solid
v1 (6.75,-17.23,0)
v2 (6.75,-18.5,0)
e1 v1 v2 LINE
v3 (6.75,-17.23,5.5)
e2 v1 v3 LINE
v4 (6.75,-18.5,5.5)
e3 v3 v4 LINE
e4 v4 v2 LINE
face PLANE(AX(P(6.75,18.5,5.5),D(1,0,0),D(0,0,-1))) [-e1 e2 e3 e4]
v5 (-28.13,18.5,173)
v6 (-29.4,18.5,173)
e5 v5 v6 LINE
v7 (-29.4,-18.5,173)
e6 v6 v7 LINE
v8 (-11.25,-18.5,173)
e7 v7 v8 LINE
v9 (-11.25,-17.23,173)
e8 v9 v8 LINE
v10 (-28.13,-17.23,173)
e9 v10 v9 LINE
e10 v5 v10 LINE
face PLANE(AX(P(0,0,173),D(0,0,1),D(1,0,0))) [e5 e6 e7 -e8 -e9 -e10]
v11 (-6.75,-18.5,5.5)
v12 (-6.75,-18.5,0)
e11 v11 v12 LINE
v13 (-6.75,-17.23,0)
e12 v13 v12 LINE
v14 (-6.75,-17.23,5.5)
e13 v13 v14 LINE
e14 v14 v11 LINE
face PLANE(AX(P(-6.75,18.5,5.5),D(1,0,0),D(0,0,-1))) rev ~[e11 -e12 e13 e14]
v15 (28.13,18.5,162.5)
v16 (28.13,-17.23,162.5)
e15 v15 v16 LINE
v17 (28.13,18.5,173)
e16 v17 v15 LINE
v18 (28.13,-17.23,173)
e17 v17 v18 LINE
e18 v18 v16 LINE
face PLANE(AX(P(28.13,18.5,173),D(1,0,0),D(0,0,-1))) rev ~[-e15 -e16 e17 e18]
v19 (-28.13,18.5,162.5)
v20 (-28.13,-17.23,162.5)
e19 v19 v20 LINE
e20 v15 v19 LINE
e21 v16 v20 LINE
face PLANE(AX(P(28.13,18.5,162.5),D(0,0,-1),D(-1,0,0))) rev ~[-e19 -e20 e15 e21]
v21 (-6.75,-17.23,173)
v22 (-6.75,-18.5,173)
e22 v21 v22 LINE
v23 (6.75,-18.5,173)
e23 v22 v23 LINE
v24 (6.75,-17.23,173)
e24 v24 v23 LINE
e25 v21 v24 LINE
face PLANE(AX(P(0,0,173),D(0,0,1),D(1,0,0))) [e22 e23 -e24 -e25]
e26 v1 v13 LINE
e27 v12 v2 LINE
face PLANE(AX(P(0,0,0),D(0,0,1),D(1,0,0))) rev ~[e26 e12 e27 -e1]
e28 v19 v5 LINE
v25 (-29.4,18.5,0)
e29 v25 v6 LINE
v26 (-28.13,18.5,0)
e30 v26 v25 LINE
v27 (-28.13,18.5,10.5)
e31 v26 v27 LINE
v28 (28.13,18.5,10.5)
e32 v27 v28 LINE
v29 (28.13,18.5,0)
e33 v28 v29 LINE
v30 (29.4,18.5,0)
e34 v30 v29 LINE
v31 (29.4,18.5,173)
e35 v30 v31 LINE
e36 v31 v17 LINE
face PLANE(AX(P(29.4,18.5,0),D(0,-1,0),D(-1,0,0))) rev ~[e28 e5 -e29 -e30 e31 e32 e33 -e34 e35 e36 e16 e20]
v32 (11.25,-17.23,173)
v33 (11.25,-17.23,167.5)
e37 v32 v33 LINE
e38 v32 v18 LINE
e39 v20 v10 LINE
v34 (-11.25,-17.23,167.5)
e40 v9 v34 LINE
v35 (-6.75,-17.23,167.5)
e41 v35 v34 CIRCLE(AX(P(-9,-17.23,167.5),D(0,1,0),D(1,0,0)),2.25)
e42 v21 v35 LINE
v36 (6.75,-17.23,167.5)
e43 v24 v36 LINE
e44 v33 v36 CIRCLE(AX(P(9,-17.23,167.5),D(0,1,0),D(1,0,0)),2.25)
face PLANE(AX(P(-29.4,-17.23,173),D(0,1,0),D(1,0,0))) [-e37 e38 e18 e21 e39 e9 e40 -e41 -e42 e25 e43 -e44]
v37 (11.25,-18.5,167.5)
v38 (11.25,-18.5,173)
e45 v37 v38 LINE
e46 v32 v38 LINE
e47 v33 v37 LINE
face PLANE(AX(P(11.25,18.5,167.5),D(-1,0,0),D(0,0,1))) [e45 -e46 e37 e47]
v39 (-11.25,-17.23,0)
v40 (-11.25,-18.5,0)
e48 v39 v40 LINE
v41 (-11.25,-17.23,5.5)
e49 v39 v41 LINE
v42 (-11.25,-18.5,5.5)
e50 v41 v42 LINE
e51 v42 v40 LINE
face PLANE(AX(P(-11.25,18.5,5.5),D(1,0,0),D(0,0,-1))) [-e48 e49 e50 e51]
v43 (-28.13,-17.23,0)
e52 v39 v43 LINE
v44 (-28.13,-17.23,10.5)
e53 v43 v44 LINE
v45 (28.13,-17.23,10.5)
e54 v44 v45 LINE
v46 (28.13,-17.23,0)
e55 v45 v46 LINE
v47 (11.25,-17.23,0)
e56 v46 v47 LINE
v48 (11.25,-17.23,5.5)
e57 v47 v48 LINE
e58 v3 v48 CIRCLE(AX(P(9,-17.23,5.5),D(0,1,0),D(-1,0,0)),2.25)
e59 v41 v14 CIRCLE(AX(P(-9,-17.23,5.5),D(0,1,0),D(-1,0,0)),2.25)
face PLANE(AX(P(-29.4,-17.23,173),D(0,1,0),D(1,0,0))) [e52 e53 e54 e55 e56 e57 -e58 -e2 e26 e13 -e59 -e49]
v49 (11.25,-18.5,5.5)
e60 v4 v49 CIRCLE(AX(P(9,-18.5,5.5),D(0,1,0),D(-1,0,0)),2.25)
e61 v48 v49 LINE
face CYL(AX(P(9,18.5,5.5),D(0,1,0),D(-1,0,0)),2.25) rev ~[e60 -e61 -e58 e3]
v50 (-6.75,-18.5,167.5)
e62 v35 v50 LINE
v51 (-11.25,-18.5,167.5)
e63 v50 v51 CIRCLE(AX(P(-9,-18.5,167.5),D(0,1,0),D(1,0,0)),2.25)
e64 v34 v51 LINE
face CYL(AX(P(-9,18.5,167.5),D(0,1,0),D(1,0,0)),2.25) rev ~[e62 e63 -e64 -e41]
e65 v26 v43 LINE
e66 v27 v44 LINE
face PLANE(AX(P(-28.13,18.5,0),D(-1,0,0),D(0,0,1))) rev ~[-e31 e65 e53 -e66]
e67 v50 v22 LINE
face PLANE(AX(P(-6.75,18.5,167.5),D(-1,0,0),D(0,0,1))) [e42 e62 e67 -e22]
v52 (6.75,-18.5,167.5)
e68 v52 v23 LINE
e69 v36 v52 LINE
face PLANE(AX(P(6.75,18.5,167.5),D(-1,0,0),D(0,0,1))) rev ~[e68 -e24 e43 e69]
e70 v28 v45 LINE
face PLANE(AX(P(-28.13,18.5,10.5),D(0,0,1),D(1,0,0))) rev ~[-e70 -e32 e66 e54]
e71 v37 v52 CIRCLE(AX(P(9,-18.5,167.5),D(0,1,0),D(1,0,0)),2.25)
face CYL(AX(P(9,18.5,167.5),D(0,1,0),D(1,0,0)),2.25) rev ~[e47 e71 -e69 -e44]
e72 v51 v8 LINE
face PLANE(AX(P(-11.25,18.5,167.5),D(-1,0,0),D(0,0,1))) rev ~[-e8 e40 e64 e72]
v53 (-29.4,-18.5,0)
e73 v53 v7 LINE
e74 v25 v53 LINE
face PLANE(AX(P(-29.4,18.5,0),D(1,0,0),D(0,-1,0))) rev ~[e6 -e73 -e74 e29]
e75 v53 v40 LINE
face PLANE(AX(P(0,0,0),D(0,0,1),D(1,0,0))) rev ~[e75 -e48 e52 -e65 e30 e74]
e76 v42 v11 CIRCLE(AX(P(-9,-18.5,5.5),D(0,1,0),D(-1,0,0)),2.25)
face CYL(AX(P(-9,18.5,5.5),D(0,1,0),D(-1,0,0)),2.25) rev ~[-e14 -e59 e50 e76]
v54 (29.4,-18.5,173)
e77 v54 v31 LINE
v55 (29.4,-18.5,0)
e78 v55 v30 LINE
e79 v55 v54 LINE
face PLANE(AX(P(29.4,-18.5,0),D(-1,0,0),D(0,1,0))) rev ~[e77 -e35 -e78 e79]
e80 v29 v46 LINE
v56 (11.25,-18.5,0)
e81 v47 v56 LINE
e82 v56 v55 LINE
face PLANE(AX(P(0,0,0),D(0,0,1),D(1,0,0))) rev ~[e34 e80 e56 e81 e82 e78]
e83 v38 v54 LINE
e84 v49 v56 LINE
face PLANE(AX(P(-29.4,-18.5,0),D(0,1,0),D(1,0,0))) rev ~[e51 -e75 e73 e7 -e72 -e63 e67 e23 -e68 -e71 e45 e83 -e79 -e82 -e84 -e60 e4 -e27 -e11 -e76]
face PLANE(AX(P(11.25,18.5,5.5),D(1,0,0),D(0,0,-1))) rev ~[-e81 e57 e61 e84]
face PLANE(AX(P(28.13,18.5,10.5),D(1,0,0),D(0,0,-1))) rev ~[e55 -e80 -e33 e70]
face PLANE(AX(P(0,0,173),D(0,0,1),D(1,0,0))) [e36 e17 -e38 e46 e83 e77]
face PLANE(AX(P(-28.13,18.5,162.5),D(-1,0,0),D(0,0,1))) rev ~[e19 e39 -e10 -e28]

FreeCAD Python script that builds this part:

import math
import FreeCAD as App
import Part
import Sketcher
from FreeCAD import Vector
Q = App.Units.Quantity

doc = App.newDocument("Part")
params = doc.addObject("Spreadsheet::Sheet", "Params")
for row, (alias, value) in enumerate([
    ("sketch1_height", "37 mm"),
    ("sketch1_width", "58.8 mm"),
    ("pad1_length", "173 mm"),
    ("sketch2_radius", "2.25 mm"),
    ("sketch2_height", "5.5 mm"),
    ("pocket1_length", "37 mm"),
    ("sketch3_height", "10.5 mm"),
    ("sketch3_width", "56.26 mm"),
    ("pocket2_length", "35.73 mm"),
], start=1):
    params.set(f"A{row}", alias)
    params.set(f"B{row}", "=" + value)
    params.setAlias(f"B{row}", alias)

body = doc.addObject("PartDesign::Body", "Body")

# Sketch on XY plane
sketch1 = doc.addObject("Sketcher::SketchObject", "Sketch")
body.addObject(sketch1)
sketch1.AttachmentSupport = (doc.XY_Plane, [""])
sketch1.MapMode = "FlatFace"
sketch1.addGeometry([
    Part.LineSegment(Vector(-29, 18, 0), Vector(-29, -18, 0)),
    Part.LineSegment(Vector(-29, -18, 0), Vector(29, -18, 0)),
    Part.LineSegment(Vector(29, -18, 0), Vector(29, 18, 0)),
    Part.LineSegment(Vector(29, 18, 0), Vector(-29, 18, 0)),
], False)
sketch1.addConstraint([
    Sketcher.Constraint("Coincident", 0, 2, 1, 1),
    Sketcher.Constraint("Coincident", 1, 2, 2, 1),
    Sketcher.Constraint("Coincident", 2, 2, 3, 1),
    Sketcher.Constraint("Coincident", 3, 2, 0, 1),
    Sketcher.Constraint("Vertical", 0),
    Sketcher.Constraint("Horizontal", 1),
    Sketcher.Constraint("Vertical", 2),
    Sketcher.Constraint("Horizontal", 3),
    Sketcher.Constraint("Symmetric", 0, 2, 2, 2, -1, 1),
    Sketcher.Constraint("DistanceY", 0, 2, 0, 1, Q("37 mm")),
    Sketcher.Constraint("DistanceX", 1, 1, 1, 2, Q("58.8 mm")),
])
sketch1.setExpression("Constraints[9]", "Params.sketch1_height")
sketch1.setExpression("Constraints[10]", "Params.sketch1_width")
pad1 = doc.addObject("PartDesign::Pad", "Pad")
body.addObject(pad1)
pad1.Profile = sketch1
pad1.setExpression("Length", "Params.pad1_length")

# Sketch on XZ plane
sketch2 = doc.addObject("Sketcher::SketchObject", "Sketch001")
body.addObject(sketch2)
sketch2.AttachmentSupport = (doc.XZ_Plane, [""])
sketch2.MapMode = "FlatFace"
sketch2.AttachmentOffset = App.Placement(Vector(0, 0, -18.5), App.Rotation())
sketch2.addGeometry([
    Part.LineSegment(Vector(-11.2, 173, 0), Vector(-6.8, 173, 0)),  # 0
    Part.LineSegment(Vector(-6.8, 173, 0), Vector(-6.8, 167.5, 0)),  # 1
    Part.ArcOfCircle(Part.Circle(Vector(-9, 167.5, 0), Vector(0, 0, 1), 2.2), math.radians(180), math.radians(360)),  # 2
    Part.LineSegment(Vector(-11.2, 167.5, 0), Vector(-11.2, 173, 0)),  # 3
    Part.LineSegment(Vector(6.8, 173, 0), Vector(11.2, 173, 0)),  # 4
    Part.LineSegment(Vector(11.2, 173, 0), Vector(11.2, 167.5, 0)),  # 5
    Part.ArcOfCircle(Part.Circle(Vector(9, 167.5, 0), Vector(0, 0, 1), 2.2), math.radians(180), math.radians(360)),  # 6
    Part.LineSegment(Vector(6.8, 167.5, 0), Vector(6.8, 173, 0)),  # 7
    Part.LineSegment(Vector(11.2, 5.5, 0), Vector(11.2, 0, 0)),  # 8
    Part.LineSegment(Vector(11.2, 0, 0), Vector(6.8, 0, 0)),  # 9
    Part.LineSegment(Vector(6.8, 0, 0), Vector(6.8, 5.5, 0)),  # 10
    Part.ArcOfCircle(Part.Circle(Vector(9, 5.5, 0), Vector(0, 0, 1), 2.2), math.radians(0), math.radians(180)),  # 11
    Part.LineSegment(Vector(-6.8, 5.5, 0), Vector(-6.8, 0, 0)),  # 12
    Part.LineSegment(Vector(-6.8, 0, 0), Vector(-11.2, 0, 0)),  # 13
    Part.LineSegment(Vector(-11.2, 0, 0), Vector(-11.2, 5.5, 0)),  # 14
    Part.ArcOfCircle(Part.Circle(Vector(-9, 5.5, 0), Vector(0, 0, 1), 2.2), math.radians(0), math.radians(180)),  # 15
], False)
sketch2.addConstraint([
    Sketcher.Constraint("Coincident", 0, 2, 1, 1),
    Sketcher.Constraint("Tangent", 1, 2, 2, 2),
    Sketcher.Constraint("Tangent", 2, 1, 3, 1),
    Sketcher.Constraint("Coincident", 3, 2, 0, 1),
    Sketcher.Constraint("Coincident", 4, 2, 5, 1),
    Sketcher.Constraint("Tangent", 5, 2, 6, 2),
    Sketcher.Constraint("Tangent", 6, 1, 7, 1),
    Sketcher.Constraint("Coincident", 7, 2, 4, 1),
    Sketcher.Constraint("Coincident", 8, 2, 9, 1),
    Sketcher.Constraint("Coincident", 9, 2, 10, 1),
    Sketcher.Constraint("Tangent", 10, 2, 11, 2),
    Sketcher.Constraint("Tangent", 11, 1, 8, 1),
    Sketcher.Constraint("Coincident", 12, 2, 13, 1),
    Sketcher.Constraint("Coincident", 13, 2, 14, 1),
    Sketcher.Constraint("Tangent", 14, 2, 15, 2),
    Sketcher.Constraint("Tangent", 15, 1, 12, 1),
    Sketcher.Constraint("Horizontal", 0),
    Sketcher.Constraint("Vertical", 1),
    Sketcher.Constraint("Vertical", 3),
    Sketcher.Constraint("Horizontal", 4),
    Sketcher.Constraint("Vertical", 5),
    Sketcher.Constraint("Vertical", 7),
    Sketcher.Constraint("Vertical", 8),
    Sketcher.Constraint("Horizontal", 9),
    Sketcher.Constraint("Vertical", 10),
    Sketcher.Constraint("Vertical", 12),
    Sketcher.Constraint("Horizontal", 13),
    Sketcher.Constraint("Vertical", 14),
    Sketcher.Constraint("Equal", 2, 6),
    Sketcher.Constraint("Equal", 6, 11),
    Sketcher.Constraint("Equal", 11, 15),
    Sketcher.Constraint("Symmetric", 9, 2, 12, 2, -1, 1),
    Sketcher.Constraint("Symmetric", 2, 3, 6, 3, -2),
    Sketcher.Constraint("PointOnObject", 8, 2, -1),
    Sketcher.Constraint("Horizontal", 11, 3, 15, 3),
    Sketcher.Constraint("Horizontal", 3, 2, 4, 2),
    Sketcher.Constraint("Vertical", 6, 3, 11, 3),
    Sketcher.Constraint("Equal", 7, 8),
    Sketcher.Constraint("Radius", 2, Q("2.25 mm")),
    Sketcher.Constraint("DistanceX", 2, 3, 6, 3, Q("18 mm")),
    Sketcher.Constraint("DistanceY", 11, 3, 6, 3, Q("162 mm")),
    Sketcher.Constraint("DistanceY", 1, 2, 1, 1, Q("5.5 mm")),
])
sketch2.setExpression("Constraints[38]", "Params.sketch2_radius")
sketch2.setExpression("Constraints[41]", "Params.sketch2_height")
pocket1 = doc.addObject("PartDesign::Pocket", "Pocket")
body.addObject(pocket1)
pocket1.Profile = sketch2
pocket1.setExpression("Length", "Params.pocket1_length")
pocket1.Reversed = True

# Sketch on XZ plane
sketch3 = doc.addObject("Sketcher::SketchObject", "Sketch002")
body.addObject(sketch3)
sketch3.AttachmentSupport = (doc.XZ_Plane, [""])
sketch3.MapMode = "FlatFace"
sketch3.AttachmentOffset = App.Placement(Vector(0, 0, -18.5), App.Rotation())
sketch3.addGeometry([
    Part.LineSegment(Vector(-28, 173, 0), Vector(28, 173, 0)),  # 0
    Part.LineSegment(Vector(28, 173, 0), Vector(28, 162, 0)),  # 1
    Part.LineSegment(Vector(28, 162, 0), Vector(-28, 162, 0)),  # 2
    Part.LineSegment(Vector(-28, 162, 0), Vector(-28, 173, 0)),  # 3
    Part.LineSegment(Vector(-28, 0, 0), Vector(-28, 10, 0)),  # 4
    Part.LineSegment(Vector(-28, 10, 0), Vector(28, 10, 0)),  # 5
    Part.LineSegment(Vector(28, 10, 0), Vector(28, 0, 0)),  # 6
    Part.LineSegment(Vector(28, 0, 0), Vector(-28, 0, 0)),  # 7
], False)
sketch3.addConstraint([
    Sketcher.Constraint("Coincident", 0, 2, 1, 1),
    Sketcher.Constraint("Coincident", 1, 2, 2, 1),
    Sketcher.Constraint("Coincident", 2, 2, 3, 1),
    Sketcher.Constraint("Coincident", 3, 2, 0, 1),
    Sketcher.Constraint("Coincident", 4, 2, 5, 1),
    Sketcher.Constraint("Coincident", 5, 2, 6, 1),
    Sketcher.Constraint("Coincident", 6, 2, 7, 1),
    Sketcher.Constraint("Coincident", 7, 2, 4, 1),
    Sketcher.Constraint("Horizontal", 0),
    Sketcher.Constraint("Vertical", 1),
    Sketcher.Constraint("Horizontal", 2),
    Sketcher.Constraint("Vertical", 3),
    Sketcher.Constraint("Vertical", 4),
    Sketcher.Constraint("Horizontal", 5),
    Sketcher.Constraint("Vertical", 6),
    Sketcher.Constraint("Horizontal", 7),
    Sketcher.Constraint("Symmetric", 6, 2, 7, 2, -1, 1),
    Sketcher.Constraint("Vertical", 3, 2, 4, 2),
    Sketcher.Constraint("Vertical", 1, 2, 5, 2),
    Sketcher.Constraint("Equal", 3, 4),
    Sketcher.Constraint("DistanceY", 4, 2, 2, 2, Q("152 mm")),
    Sketcher.Constraint("DistanceY", 1, 2, 1, 1, Q("10.5 mm")),
    Sketcher.Constraint("DistanceX", 0, 1, 0, 2, Q("56.26 mm")),
])
sketch3.setExpression("Constraints[21]", "Params.sketch3_height")
sketch3.setExpression("Constraints[22]", "Params.sketch3_width")
pocket2 = doc.addObject("PartDesign::Pocket", "Pocket001")
body.addObject(pocket2)
pocket2.Profile = sketch3
pocket2.setExpression("Length", "Params.pocket2_length")
pocket2.Reversed = True

doc.recompute()
